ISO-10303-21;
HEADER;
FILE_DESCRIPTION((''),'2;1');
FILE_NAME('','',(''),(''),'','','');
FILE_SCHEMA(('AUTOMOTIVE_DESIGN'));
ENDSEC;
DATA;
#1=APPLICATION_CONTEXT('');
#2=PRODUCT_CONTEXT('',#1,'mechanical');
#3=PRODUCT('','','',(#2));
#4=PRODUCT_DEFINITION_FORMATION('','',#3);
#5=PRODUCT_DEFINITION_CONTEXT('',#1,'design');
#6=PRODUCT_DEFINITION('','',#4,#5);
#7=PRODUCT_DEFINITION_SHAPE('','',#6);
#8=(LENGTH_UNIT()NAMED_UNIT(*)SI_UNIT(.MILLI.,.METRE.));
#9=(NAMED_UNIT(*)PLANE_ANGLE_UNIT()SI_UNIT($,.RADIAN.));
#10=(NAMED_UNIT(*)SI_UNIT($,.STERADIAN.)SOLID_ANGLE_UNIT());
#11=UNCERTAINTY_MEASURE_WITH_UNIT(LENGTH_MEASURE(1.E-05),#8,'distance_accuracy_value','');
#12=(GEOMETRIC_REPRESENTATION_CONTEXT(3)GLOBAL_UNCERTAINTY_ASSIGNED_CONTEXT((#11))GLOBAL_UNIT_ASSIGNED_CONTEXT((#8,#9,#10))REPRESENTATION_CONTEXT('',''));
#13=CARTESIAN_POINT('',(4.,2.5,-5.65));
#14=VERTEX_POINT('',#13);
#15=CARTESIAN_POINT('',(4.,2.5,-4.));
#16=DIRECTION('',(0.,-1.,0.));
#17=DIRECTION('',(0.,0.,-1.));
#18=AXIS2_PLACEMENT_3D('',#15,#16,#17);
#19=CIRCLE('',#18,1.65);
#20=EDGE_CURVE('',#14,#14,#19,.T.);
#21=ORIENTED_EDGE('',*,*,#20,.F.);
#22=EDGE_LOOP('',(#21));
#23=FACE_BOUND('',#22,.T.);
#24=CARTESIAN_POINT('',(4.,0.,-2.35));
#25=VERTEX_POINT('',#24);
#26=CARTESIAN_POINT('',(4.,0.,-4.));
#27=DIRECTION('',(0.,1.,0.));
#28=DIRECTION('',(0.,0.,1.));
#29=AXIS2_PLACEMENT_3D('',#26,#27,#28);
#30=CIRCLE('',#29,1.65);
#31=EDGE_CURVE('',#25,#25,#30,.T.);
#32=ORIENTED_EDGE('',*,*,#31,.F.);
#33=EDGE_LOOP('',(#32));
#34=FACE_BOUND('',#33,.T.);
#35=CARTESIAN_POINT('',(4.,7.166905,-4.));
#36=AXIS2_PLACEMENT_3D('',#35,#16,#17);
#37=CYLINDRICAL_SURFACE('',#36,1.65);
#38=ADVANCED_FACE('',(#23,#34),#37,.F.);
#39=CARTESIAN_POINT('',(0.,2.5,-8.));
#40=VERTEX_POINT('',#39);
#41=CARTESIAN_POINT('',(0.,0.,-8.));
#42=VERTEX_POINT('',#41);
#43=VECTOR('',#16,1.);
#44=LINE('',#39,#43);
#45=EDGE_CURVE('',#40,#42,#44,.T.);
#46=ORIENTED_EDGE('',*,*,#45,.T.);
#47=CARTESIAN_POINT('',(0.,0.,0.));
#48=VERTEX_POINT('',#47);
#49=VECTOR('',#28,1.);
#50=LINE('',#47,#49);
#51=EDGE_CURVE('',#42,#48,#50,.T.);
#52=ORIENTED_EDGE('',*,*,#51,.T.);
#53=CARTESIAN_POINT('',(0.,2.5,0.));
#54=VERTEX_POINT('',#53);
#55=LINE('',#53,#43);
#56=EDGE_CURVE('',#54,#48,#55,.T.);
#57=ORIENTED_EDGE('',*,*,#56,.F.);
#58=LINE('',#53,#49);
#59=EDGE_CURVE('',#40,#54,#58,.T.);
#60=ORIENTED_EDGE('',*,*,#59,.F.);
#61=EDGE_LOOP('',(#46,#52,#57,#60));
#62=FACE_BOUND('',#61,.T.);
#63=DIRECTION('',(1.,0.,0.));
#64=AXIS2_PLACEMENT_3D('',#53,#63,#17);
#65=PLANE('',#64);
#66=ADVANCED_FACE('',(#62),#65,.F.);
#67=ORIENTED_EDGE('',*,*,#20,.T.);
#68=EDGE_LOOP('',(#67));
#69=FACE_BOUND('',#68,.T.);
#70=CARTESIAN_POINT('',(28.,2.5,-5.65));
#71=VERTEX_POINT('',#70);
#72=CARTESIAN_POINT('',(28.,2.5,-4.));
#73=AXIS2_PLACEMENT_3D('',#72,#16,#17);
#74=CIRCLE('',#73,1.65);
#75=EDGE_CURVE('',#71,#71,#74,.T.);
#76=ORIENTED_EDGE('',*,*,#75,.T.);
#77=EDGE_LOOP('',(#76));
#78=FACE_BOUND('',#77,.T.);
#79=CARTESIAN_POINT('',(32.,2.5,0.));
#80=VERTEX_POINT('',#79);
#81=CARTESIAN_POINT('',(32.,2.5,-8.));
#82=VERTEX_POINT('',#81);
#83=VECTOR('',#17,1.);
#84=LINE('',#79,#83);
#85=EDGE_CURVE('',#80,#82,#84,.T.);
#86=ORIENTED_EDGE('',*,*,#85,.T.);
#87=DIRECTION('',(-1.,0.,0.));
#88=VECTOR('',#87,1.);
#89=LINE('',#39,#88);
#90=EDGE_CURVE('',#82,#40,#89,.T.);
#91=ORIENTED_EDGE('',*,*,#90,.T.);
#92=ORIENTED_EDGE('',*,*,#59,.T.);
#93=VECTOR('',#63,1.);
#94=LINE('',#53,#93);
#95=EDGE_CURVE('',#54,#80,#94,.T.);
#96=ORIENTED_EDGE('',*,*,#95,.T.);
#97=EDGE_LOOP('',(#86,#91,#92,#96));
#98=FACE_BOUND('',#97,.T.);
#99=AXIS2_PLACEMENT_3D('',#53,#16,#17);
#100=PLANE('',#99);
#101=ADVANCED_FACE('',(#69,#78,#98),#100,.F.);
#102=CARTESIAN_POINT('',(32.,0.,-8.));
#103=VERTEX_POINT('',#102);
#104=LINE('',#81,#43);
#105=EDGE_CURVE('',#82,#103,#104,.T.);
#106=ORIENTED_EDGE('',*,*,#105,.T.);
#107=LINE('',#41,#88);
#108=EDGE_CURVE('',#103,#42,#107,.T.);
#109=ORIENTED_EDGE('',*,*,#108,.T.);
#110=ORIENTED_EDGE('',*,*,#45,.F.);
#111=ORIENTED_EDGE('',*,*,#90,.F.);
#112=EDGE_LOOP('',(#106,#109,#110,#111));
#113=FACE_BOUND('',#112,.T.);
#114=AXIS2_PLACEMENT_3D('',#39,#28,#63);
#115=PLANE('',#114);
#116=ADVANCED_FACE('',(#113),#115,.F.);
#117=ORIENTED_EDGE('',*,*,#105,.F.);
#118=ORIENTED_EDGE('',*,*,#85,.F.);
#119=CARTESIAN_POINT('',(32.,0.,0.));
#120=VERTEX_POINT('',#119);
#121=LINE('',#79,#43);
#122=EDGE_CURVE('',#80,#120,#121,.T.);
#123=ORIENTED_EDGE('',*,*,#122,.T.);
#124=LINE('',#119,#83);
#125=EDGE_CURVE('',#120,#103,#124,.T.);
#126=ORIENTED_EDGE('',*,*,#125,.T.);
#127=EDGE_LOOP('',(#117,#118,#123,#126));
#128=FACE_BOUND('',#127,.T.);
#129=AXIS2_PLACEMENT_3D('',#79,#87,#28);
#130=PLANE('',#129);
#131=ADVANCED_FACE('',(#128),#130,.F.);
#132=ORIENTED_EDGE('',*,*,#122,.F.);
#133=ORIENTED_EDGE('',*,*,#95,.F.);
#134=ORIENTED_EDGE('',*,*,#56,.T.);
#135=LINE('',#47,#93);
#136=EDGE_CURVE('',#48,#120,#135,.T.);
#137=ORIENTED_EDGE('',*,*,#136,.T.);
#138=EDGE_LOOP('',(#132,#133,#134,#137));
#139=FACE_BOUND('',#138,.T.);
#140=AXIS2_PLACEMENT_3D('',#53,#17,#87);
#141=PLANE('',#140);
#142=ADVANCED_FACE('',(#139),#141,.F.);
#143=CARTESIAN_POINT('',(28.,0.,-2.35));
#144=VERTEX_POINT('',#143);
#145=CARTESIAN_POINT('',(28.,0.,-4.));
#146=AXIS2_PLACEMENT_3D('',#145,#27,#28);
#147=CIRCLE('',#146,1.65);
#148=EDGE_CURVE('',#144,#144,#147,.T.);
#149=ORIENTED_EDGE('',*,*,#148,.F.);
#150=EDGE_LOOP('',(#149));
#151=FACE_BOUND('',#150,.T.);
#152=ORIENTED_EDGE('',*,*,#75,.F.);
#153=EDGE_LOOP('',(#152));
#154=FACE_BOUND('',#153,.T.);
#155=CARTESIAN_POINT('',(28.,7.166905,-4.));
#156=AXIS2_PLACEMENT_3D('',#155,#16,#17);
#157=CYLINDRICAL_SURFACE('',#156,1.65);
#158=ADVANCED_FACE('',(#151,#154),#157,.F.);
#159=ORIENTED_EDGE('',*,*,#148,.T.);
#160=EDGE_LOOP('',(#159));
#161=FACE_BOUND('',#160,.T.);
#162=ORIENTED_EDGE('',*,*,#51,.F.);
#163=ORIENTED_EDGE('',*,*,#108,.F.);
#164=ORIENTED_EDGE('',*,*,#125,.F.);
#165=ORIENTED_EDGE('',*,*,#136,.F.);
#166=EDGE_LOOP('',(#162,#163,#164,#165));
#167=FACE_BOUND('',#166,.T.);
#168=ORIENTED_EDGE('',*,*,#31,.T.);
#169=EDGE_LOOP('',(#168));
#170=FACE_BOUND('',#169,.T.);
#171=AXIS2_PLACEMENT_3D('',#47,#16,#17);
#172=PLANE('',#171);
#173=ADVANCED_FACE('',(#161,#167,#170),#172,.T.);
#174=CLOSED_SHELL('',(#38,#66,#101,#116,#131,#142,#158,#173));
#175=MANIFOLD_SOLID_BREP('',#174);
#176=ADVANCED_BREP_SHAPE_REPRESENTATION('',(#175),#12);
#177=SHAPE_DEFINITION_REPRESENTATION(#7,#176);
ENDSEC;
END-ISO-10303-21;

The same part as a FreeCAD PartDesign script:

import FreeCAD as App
import Part
import Sketcher
Q = App.Units.Quantity

doc = App.newDocument("Part")
params = doc.addObject("Spreadsheet::Sheet", "Params")
for row, (alias, value) in enumerate([
    ("sketch1_width", "32 mm"),
    ("sketch1_height", "8 mm"),
    ("pad1_length", "2.5 mm"),
    ("sketch2_diameter", "3.3 mm"),
    ("pocket1_length", "2.5 mm"),
], start=1):
    params.set(f"A{row}", alias)
    params.set(f"B{row}", "=" + value)
    params.setAlias(f"B{row}", alias)

body = doc.addObject("PartDesign::Body", "Body")

# Sketch on XZ plane
sketch1 = body.newObject("Sketcher::SketchObject", "Sketch")
sketch1.AttachmentSupport = (doc.getObject("XZ_Plane"), [""])
sketch1.MapMode = "FlatFace"
sketch1.addGeometry(Part.LineSegment(App.Vector(0, -8, 0), App.Vector(0, 0, 0)), False)
sketch1.addGeometry(Part.LineSegment(App.Vector(0, 0, 0), App.Vector(32, 0, 0)), False)
sketch1.addGeometry(Part.LineSegment(App.Vector(32, 0, 0), App.Vector(32, -8, 0)), False)
sketch1.addGeometry(Part.LineSegment(App.Vector(32, -8, 0), App.Vector(0, -8, 0)), False)
sketch1.addConstraint(Sketcher.Constraint("Coincident", 0, 2, 1, 1))
sketch1.addConstraint(Sketcher.Constraint("Coincident", 1, 2, 2, 1))
sketch1.addConstraint(Sketcher.Constraint("Coincident", 2, 2, 3, 1))
sketch1.addConstraint(Sketcher.Constraint("Coincident", 3, 2, 0, 1))
sketch1.addConstraint(Sketcher.Constraint("Vertical", 0))
sketch1.addConstraint(Sketcher.Constraint("Horizontal", 1))
sketch1.addConstraint(Sketcher.Constraint("Vertical", 2))
sketch1.addConstraint(Sketcher.Constraint("Horizontal", 3))
sketch1.addConstraint(Sketcher.Constraint("Coincident", 0, 2, -1, 1))
sketch1.addConstraint(Sketcher.Constraint("DistanceX", 1, 1, 1, 2, Q("32 mm")))
sketch1.addConstraint(Sketcher.Constraint("DistanceY", 0, 1, 0, 2, Q("8 mm")))
sketch1.setExpression("Constraints[9]", "Params.sketch1_width")
sketch1.setExpression("Constraints[10]", "Params.sketch1_height")
pad1 = body.newObject("PartDesign::Pad", "Pad")
pad1.Profile = sketch1
pad1.setExpression("Length", "Params.pad1_length")
pad1.Reversed = True

# Sketch on XZ plane
sketch2 = body.newObject("Sketcher::SketchObject", "Sketch001")
sketch2.AttachmentSupport = (doc.getObject("XZ_Plane"), [""])
sketch2.MapMode = "FlatFace"
sketch2.addGeometry(Part.Circle(App.Vector(4, -4, 0), App.Vector(0, 0, 1), 1.65), False)
sketch2.addGeometry(Part.Circle(App.Vector(28, -4, 0), App.Vector(0, 0, 1), 1.65), False)
sketch2.addConstraint(Sketcher.Constraint("Equal", 0, 1))
sketch2.addConstraint(Sketcher.Constraint("Horizontal", 0, 3, 1, 3))
sketch2.addConstraint(Sketcher.Constraint("Diameter", 0, Q("3.3 mm")))
sketch2.addConstraint(Sketcher.Constraint("DistanceX", -1, 1, 0, 3, Q("4 mm")))
sketch2.addConstraint(Sketcher.Constraint("DistanceY", 0, 3, -1, 1, Q("4 mm")))
sketch2.addConstraint(Sketcher.Constraint("DistanceX", -1, 1, 1, 3, Q("28 mm")))
sketch2.setExpression("Constraints[2]", "Params.sketch2_diameter")
pocket1 = body.newObject("PartDesign::Pocket", "Pocket")
pocket1.Profile = sketch2
pocket1.setExpression("Length", "Params.pocket1_length")

doc.recompute()
